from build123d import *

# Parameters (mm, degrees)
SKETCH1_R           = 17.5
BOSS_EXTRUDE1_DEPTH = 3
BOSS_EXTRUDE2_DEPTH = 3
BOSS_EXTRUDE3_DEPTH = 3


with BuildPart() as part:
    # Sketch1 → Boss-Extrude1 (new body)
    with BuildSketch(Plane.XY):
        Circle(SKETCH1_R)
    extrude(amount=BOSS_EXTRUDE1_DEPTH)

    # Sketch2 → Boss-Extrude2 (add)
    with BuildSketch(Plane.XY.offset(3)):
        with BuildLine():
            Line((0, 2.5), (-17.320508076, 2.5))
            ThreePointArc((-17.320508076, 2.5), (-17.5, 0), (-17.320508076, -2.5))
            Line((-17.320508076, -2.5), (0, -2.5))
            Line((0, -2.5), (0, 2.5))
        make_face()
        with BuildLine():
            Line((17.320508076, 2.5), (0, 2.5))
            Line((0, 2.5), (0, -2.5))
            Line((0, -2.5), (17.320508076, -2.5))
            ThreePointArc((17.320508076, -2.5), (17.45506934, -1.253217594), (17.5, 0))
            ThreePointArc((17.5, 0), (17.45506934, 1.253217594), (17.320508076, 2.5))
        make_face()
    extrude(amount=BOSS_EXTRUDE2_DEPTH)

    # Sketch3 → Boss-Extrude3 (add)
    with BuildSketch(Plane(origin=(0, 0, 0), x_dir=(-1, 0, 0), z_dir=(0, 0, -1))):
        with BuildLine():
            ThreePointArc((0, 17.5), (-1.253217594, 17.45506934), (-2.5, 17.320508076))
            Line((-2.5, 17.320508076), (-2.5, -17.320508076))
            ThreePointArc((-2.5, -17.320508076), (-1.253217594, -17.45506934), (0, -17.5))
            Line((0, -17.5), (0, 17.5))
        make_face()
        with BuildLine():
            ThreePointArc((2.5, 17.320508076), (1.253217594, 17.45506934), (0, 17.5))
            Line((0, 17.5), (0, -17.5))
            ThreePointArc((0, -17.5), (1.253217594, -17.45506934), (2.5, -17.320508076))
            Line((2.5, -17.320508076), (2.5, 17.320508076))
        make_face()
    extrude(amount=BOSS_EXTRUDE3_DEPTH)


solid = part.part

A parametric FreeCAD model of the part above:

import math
import FreeCAD as App
import Part
import Sketcher
from FreeCAD import Vector

doc = App.newDocument("Part")
body = doc.addObject("PartDesign::Body", "Body")

# Sketch on XY plane
sketch1 = body.newObject("Sketcher::SketchObject", "Sketch")
sketch1.AttachmentSupport = (doc.getObject("XY_Plane"), [""])
sketch1.MapMode = "FlatFace"
sketch1.addGeometry(Part.Circle(Vector(0, 0, 0), Vector(0, 0, 1), 18), False)
sketch1.addConstraint([
    Sketcher.Constraint("Coincident", 0, 3, -1, 1),
    Sketcher.Constraint("Diameter", 0, 35.0),
])
pad1 = body.newObject("PartDesign::Pad", "Pad")
pad1.Profile = sketch1
pad1.Length = 3

# Sketch on XY plane
sketch2 = body.newObject("Sketcher::SketchObject", "Sketch001")
sketch2.AttachmentSupport = (doc.getObject("XY_Plane"), [""])
sketch2.MapMode = "FlatFace"
sketch2.AttachmentOffset = App.Placement(Vector(0, 0, 3), App.Rotation())
sketch2.addGeometry([
    Part.ArcOfCircle(Part.Circle(Vector(0, 0, 0), Vector(0, 0, 1), 17.5), math.radians(171.79), math.radians(188.21)),  # 0
    Part.LineSegment(Vector(-17.3, -2.5, 0), Vector(17.3, -2.5, 0)),  # 1
    Part.ArcOfCircle(Part.Circle(Vector(0, 0, 0), Vector(0, 0, 1), 17.5), math.radians(-8.21), math.radians(0)),  # 2
    Part.ArcOfCircle(Part.Circle(Vector(0, 0, 0), Vector(0, 0, 1), 17.5), math.radians(0), math.radians(8.21)),  # 3
    Part.LineSegment(Vector(17.3, 2.5, 0), Vector(-17.3, 2.5, 0)),  # 4
], False)
sketch2.addConstraint([
    Sketcher.Constraint("Coincident", 0, 2, 1, 1),
    Sketcher.Constraint("Coincident", 1, 2, 2, 1),
    Sketcher.Constraint("Tangent", 2, 2, 3, 1),
    Sketcher.Constraint("Coincident", 3, 2, 4, 1),
    Sketcher.Constraint("Coincident", 4, 2, 0, 1),
    Sketcher.Constraint("Horizontal", 1),
    Sketcher.Constraint("Horizontal", 4),
    Sketcher.Constraint("Coincident", 0, 3, -1, 1),
    Sketcher.Constraint("Coincident", 2, 3, -1, 1),
    Sketcher.Constraint("Equal", 0, 2),
    Sketcher.Constraint("Equal", 2, 3),
    Sketcher.Constraint("PointOnObject", 2, 2, -1),
    Sketcher.Constraint("Vertical", 1, 2, 3, 2),
    Sketcher.Constraint("Radius", 0, 17.5),
    Sketcher.Constraint("DistanceY", 1, 2, 3, 2, 5.0),
])
pad2 = body.newObject("PartDesign::Pad", "Pad001")
pad2.Profile = sketch2
pad2.Length = 3

# Sketch on XY plane
sketch3 = body.newObject("Sketcher::SketchObject", "Sketch002")
sketch3.AttachmentSupport = (doc.getObject("XY_Plane"), [""])
sketch3.MapMode = "FlatFace"
sketch3.addGeometry([
    Part.ArcOfCircle(Part.Circle(Vector(0, 0, 0), Vector(0, 0, 1), 17.5), math.radians(81.79), math.radians(90)),  # 0
    Part.LineSegment(Vector(2.5, 17.3, 0), Vector(2.5, -17.3, 0)),  # 1
    Part.ArcOfCircle(Part.Circle(Vector(0, 0, 0), Vector(0, 0, 1), 17.5), math.radians(-90), math.radians(-81.79)),  # 2
    Part.ArcOfCircle(Part.Circle(Vector(0, 0, 0), Vector(0, 0, 1), 17.5), math.radians(-98.21), math.radians(-90)),  # 3
    Part.LineSegment(Vector(-2.5, -17.3, 0), Vector(-2.5, 17.3, 0)),  # 4
    Part.ArcOfCircle(Part.Circle(Vector(0, 0, 0), Vector(0, 0, 1), 17.5), math.radians(90), math.radians(98.21)),  # 5
], False)
sketch3.addConstraint([
    Sketcher.Constraint("Coincident", 0, 1, 1, 1),
    Sketcher.Constraint("Coincident", 1, 2, 2, 2),
    Sketcher.Constraint("Tangent", 2, 1, 3, 2),
    Sketcher.Constraint("Coincident", 3, 1, 4, 1),
    Sketcher.Constraint("Coincident", 4, 2, 5, 2),
    Sketcher.Constraint("Tangent", 5, 1, 0, 2),
    Sketcher.Constraint("Vertical", 1),
    Sketcher.Constraint("Vertical", 4),
    Sketcher.Constraint("Coincident", 0, 3, -1, 1),
    Sketcher.Constraint("Coincident", 2, 3, -1, 1),
    Sketcher.Constraint("Equal", 0, 2),
    Sketcher.Constraint("Equal", 2, 3),
    Sketcher.Constraint("Equal", 3, 5),
    Sketcher.Constraint("PointOnObject", 2, 1, -2),
    Sketcher.Constraint("PointOnObject", 5, 1, -2),
    Sketcher.Constraint("Horizontal", 1, 2, 3, 1),
    Sketcher.Constraint("Radius", 0, 17.5),
    Sketcher.Constraint("DistanceX", 3, 1, 1, 2, 5.0),
])
pad3 = body.newObject("PartDesign::Pad", "Pad002")
pad3.Profile = sketch3
pad3.Length = 3
pad3.Reversed = True

doc.recompute()
